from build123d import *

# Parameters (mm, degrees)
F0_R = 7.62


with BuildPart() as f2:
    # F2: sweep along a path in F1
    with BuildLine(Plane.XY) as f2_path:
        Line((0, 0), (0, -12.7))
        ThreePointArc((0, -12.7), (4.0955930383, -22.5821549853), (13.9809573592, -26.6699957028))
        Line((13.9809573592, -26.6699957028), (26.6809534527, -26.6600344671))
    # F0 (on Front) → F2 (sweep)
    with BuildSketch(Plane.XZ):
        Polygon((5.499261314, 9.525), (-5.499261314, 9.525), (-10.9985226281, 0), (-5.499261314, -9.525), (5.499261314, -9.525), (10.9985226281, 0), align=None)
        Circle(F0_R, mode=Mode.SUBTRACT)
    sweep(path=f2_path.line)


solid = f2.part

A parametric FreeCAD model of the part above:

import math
import FreeCAD as App
import Part
import Sketcher
from FreeCAD import Vector
Q = App.Units.Quantity

doc = App.newDocument("Part")
body = doc.addObject("PartDesign::Body", "Body")

sketch1 = body.newObject("Sketcher::SketchObject", "Sketch")
sketch1.AttachmentSupport = (doc.getObject("XZ_Plane"), [""])
sketch1.MapMode = "FlatFace"
sketch1.addGeometry(Part.LineSegment(Vector(5, 10, 0), Vector(-5, 10, 0)), False)
sketch1.addGeometry(Part.LineSegment(Vector(-5, 10, 0), Vector(-11, 0, 0)), False)
sketch1.addGeometry(Part.LineSegment(Vector(-11, 0, 0), Vector(-5, -10, 0)), False)
sketch1.addGeometry(Part.LineSegment(Vector(-5, -10, 0), Vector(5, -10, 0)), False)
sketch1.addGeometry(Part.LineSegment(Vector(5, -10, 0), Vector(11, 0, 0)), False)
sketch1.addGeometry(Part.LineSegment(Vector(11, 0, 0), Vector(5, 10, 0)), False)
sketch1.addGeometry(Part.Circle(Vector(0, 0, 0), Vector(0, 0, 1), 8), False)
sketch1.addConstraint(Sketcher.Constraint("Coincident", 0, 2, 1, 1))
sketch1.addConstraint(Sketcher.Constraint("Coincident", 1, 2, 2, 1))
sketch1.addConstraint(Sketcher.Constraint("Coincident", 2, 2, 3, 1))
sketch1.addConstraint(Sketcher.Constraint("Coincident", 3, 2, 4, 1))
sketch1.addConstraint(Sketcher.Constraint("Coincident", 4, 2, 5, 1))
sketch1.addConstraint(Sketcher.Constraint("Coincident", 5, 2, 0, 1))
sketch1.addConstraint(Sketcher.Constraint("Horizontal", 0))
sketch1.addConstraint(Sketcher.Constraint("Horizontal", 3))
sketch1.addConstraint(Sketcher.Constraint("Coincident", 6, 3, -1, 1))
sketch1.addConstraint(Sketcher.Constraint("Symmetric", 0, 2, 3, 2, -1, 1))
sketch1.addConstraint(Sketcher.Constraint("Symmetric", 1, 2, 4, 2, -1, 1))
sketch1.addConstraint(Sketcher.Constraint("PointOnObject", 1, 2, -1))
sketch1.addConstraint(Sketcher.Constraint("Parallel", 2, 5))
sketch1.addConstraint(Sketcher.Constraint("Vertical", 0, 2, 2, 2))
sketch1.addConstraint(Sketcher.Constraint("Diameter", 6, Q("0.6 in")))
sketch1.addConstraint(Sketcher.Constraint("Angle", 1, Q("-120 deg")))
sketch1.addConstraint(Sketcher.Constraint("DistanceY", 2, 2, 0, 2, Q("0.75 in")))
sketch1.addConstraint(Sketcher.Constraint("DistanceX", 0, 2, 0, 1, 10.998523))

sketch2 = body.newObject("Sketcher::SketchObject", "Sketch001")
sketch2.AttachmentSupport = (doc.getObject("XY_Plane"), [""])
sketch2.MapMode = "FlatFace"
sketch2.addGeometry(Part.LineSegment(Vector(0, 0, 0), Vector(0, -13, 0)), False)
sketch2.addGeometry(Part.ArcOfCircle(Part.Circle(Vector(14, -13, 0), Vector(0, 0, 1), 14), math.radians(180), math.radians(270)), False)
sketch2.addGeometry(Part.LineSegment(Vector(14, -27, 0), Vector(27, -27, 0)), False)
sketch2.addConstraint(Sketcher.Constraint("Tangent", 0, 2, 1, 1))
sketch2.addConstraint(Sketcher.Constraint("Tangent", 1, 2, 2, 1))
sketch2.addConstraint(Sketcher.Constraint("Vertical", 0))
sketch2.addConstraint(Sketcher.Constraint("Coincident", 0, 1, -1, 1))
sketch2.addConstraint(Sketcher.Constraint("Radius", 1, Q("0.55 in")))
sketch2.addConstraint(Sketcher.Constraint("DistanceY", 0, 2, 0, 1, Q("0.5 in")))
sketch2.addConstraint(Sketcher.Constraint("Distance", 2, Q("0.5 in")))
sketch2.addConstraint(Sketcher.Constraint("DistanceY", 1, 2, 2, 2, 0.009961))
doc.recompute()

additivepipe = body.newObject("PartDesign::AdditivePipe", "AdditivePipe")
additivepipe.Profile = sketch1
additivepipe.Spine = (sketch2, ["Edge1", "Edge2", "Edge3"])

doc.recompute()
